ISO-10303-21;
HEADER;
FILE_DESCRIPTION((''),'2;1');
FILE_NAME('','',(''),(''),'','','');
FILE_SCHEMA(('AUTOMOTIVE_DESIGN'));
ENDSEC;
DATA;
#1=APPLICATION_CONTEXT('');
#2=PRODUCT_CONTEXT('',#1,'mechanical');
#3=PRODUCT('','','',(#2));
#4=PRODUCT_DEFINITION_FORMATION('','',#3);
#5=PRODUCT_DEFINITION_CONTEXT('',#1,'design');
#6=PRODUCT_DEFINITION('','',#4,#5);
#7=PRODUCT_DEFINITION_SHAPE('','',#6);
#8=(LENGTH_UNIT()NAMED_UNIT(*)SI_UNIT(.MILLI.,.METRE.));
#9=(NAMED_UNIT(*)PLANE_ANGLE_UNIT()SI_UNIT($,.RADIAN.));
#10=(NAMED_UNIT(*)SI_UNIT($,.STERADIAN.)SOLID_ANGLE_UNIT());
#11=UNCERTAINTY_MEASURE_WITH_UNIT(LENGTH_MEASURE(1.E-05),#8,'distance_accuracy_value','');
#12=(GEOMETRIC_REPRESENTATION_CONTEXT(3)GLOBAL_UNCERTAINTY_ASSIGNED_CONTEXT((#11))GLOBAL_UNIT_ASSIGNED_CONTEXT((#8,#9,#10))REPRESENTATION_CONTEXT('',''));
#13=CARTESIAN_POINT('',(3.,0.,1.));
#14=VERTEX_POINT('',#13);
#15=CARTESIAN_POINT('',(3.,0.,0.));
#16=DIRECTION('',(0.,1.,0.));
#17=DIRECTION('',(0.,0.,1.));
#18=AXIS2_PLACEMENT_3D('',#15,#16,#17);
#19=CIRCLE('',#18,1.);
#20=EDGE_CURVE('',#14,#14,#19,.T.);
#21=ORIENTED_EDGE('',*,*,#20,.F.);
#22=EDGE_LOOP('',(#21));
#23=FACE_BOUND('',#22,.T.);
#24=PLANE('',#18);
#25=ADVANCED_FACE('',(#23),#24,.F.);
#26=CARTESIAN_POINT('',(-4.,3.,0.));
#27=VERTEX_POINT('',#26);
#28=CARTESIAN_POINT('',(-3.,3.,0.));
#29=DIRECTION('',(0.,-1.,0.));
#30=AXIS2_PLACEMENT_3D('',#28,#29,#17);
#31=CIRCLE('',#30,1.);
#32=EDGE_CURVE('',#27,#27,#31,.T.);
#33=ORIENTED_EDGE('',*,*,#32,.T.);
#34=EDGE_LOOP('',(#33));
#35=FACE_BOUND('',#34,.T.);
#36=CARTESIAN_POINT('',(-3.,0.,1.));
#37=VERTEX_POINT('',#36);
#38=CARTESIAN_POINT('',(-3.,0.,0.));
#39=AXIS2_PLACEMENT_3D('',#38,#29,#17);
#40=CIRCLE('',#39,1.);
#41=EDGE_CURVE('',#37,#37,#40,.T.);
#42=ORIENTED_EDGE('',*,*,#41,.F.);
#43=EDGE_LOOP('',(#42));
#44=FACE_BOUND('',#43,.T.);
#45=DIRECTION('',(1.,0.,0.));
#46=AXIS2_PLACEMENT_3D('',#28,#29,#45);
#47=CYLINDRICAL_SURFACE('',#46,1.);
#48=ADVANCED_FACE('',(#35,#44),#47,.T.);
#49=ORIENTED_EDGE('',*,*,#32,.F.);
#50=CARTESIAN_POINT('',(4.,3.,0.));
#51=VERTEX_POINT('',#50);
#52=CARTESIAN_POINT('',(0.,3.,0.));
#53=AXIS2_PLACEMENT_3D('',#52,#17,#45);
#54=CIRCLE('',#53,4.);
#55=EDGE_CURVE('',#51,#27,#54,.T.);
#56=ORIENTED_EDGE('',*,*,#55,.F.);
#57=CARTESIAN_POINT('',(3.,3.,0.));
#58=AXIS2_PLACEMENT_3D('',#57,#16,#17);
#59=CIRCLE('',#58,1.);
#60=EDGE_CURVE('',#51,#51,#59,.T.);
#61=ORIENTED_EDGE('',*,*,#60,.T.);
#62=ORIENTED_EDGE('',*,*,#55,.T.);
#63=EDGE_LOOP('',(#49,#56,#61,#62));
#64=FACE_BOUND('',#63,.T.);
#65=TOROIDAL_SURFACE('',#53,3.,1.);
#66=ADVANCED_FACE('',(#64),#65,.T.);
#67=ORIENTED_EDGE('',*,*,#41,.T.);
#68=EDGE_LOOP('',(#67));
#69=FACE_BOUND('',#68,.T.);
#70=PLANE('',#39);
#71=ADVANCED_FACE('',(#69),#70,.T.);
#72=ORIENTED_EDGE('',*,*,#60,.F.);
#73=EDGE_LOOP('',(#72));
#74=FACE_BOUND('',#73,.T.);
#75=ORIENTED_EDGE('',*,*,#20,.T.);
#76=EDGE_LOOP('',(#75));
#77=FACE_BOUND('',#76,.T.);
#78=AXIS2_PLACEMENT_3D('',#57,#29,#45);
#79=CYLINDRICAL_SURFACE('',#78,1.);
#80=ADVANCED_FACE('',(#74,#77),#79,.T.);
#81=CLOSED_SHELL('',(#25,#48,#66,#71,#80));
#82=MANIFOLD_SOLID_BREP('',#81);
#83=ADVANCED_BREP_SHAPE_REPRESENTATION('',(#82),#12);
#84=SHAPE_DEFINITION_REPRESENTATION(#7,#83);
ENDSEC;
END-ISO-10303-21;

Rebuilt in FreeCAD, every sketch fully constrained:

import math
import FreeCAD as App
import Part
import Sketcher

doc = App.newDocument("Part")
params = doc.addObject("Spreadsheet::Sheet", "Params")
for row, (alias, value) in enumerate([
    ("sketch1_diameter", "2 mm"),
    ("sketch2_radius", "3 mm"),
    ("sketch2_height", "3 mm"),
], start=1):
    params.set(f"A{row}", alias)
    params.set(f"B{row}", "=" + value)
    params.setAlias(f"B{row}", alias)

body = doc.addObject("PartDesign::Body", "Body")

# Sketch on XZ plane
sketch1 = body.newObject("Sketcher::SketchObject", "Sketch")
sketch1.AttachmentSupport = (doc.getObject("XZ_Plane"), [""])
sketch1.MapMode = "FlatFace"
sketch1.addGeometry(Part.Circle(App.Vector(3, 0, 0), App.Vector(0, 0, 1), 1), False)
sketch1.addConstraint([
    Sketcher.Constraint("PointOnObject", 0, 3, -1),
    Sketcher.Constraint("Diameter", 0, 2.0),
    Sketcher.Constraint("DistanceX", -1, 1, 0, 3, 3.0),
])
sketch1.setExpression("Constraints[1]", "Params.sketch1_diameter")

# Sketch on XY plane
sketch2 = body.newObject("Sketcher::SketchObject", "Sketch001")
sketch2.AttachmentSupport = (doc.getObject("XY_Plane"), [""])
sketch2.MapMode = "FlatFace"
sketch2.addGeometry([
    Part.LineSegment(App.Vector(-3, 0, 0), App.Vector(-3, 3, 0)),
    Part.ArcOfCircle(Part.Circle(App.Vector(0, 3, 0), App.Vector(0, 0, 1), 3), math.radians(0), math.radians(180)),
    Part.LineSegment(App.Vector(3, 3, 0), App.Vector(3, 0, 0)),
], False)
sketch2.addConstraint([
    Sketcher.Constraint("Tangent", 0, 2, 1, 2),
    Sketcher.Constraint("Tangent", 1, 1, 2, 1),
    Sketcher.Constraint("Vertical", 0),
    Sketcher.Constraint("Vertical", 2),
    Sketcher.Constraint("Symmetric", 0, 1, 2, 2, -1, 1),
    Sketcher.Constraint("PointOnObject", 0, 1, -1),
    Sketcher.Constraint("Radius", 1, 3.0),
    Sketcher.Constraint("DistanceY", 0, 1, 0, 2, 3.0),
])
sketch2.setExpression("Constraints[6]", "Params.sketch2_radius")
sketch2.setExpression("Constraints[7]", "Params.sketch2_height")
doc.recompute()

additivepipe = body.newObject("PartDesign::AdditivePipe", "AdditivePipe")
additivepipe.Profile = sketch1
additivepipe.Spine = (sketch2, ["Edge1", "Edge2", "Edge3"])

doc.recompute()
